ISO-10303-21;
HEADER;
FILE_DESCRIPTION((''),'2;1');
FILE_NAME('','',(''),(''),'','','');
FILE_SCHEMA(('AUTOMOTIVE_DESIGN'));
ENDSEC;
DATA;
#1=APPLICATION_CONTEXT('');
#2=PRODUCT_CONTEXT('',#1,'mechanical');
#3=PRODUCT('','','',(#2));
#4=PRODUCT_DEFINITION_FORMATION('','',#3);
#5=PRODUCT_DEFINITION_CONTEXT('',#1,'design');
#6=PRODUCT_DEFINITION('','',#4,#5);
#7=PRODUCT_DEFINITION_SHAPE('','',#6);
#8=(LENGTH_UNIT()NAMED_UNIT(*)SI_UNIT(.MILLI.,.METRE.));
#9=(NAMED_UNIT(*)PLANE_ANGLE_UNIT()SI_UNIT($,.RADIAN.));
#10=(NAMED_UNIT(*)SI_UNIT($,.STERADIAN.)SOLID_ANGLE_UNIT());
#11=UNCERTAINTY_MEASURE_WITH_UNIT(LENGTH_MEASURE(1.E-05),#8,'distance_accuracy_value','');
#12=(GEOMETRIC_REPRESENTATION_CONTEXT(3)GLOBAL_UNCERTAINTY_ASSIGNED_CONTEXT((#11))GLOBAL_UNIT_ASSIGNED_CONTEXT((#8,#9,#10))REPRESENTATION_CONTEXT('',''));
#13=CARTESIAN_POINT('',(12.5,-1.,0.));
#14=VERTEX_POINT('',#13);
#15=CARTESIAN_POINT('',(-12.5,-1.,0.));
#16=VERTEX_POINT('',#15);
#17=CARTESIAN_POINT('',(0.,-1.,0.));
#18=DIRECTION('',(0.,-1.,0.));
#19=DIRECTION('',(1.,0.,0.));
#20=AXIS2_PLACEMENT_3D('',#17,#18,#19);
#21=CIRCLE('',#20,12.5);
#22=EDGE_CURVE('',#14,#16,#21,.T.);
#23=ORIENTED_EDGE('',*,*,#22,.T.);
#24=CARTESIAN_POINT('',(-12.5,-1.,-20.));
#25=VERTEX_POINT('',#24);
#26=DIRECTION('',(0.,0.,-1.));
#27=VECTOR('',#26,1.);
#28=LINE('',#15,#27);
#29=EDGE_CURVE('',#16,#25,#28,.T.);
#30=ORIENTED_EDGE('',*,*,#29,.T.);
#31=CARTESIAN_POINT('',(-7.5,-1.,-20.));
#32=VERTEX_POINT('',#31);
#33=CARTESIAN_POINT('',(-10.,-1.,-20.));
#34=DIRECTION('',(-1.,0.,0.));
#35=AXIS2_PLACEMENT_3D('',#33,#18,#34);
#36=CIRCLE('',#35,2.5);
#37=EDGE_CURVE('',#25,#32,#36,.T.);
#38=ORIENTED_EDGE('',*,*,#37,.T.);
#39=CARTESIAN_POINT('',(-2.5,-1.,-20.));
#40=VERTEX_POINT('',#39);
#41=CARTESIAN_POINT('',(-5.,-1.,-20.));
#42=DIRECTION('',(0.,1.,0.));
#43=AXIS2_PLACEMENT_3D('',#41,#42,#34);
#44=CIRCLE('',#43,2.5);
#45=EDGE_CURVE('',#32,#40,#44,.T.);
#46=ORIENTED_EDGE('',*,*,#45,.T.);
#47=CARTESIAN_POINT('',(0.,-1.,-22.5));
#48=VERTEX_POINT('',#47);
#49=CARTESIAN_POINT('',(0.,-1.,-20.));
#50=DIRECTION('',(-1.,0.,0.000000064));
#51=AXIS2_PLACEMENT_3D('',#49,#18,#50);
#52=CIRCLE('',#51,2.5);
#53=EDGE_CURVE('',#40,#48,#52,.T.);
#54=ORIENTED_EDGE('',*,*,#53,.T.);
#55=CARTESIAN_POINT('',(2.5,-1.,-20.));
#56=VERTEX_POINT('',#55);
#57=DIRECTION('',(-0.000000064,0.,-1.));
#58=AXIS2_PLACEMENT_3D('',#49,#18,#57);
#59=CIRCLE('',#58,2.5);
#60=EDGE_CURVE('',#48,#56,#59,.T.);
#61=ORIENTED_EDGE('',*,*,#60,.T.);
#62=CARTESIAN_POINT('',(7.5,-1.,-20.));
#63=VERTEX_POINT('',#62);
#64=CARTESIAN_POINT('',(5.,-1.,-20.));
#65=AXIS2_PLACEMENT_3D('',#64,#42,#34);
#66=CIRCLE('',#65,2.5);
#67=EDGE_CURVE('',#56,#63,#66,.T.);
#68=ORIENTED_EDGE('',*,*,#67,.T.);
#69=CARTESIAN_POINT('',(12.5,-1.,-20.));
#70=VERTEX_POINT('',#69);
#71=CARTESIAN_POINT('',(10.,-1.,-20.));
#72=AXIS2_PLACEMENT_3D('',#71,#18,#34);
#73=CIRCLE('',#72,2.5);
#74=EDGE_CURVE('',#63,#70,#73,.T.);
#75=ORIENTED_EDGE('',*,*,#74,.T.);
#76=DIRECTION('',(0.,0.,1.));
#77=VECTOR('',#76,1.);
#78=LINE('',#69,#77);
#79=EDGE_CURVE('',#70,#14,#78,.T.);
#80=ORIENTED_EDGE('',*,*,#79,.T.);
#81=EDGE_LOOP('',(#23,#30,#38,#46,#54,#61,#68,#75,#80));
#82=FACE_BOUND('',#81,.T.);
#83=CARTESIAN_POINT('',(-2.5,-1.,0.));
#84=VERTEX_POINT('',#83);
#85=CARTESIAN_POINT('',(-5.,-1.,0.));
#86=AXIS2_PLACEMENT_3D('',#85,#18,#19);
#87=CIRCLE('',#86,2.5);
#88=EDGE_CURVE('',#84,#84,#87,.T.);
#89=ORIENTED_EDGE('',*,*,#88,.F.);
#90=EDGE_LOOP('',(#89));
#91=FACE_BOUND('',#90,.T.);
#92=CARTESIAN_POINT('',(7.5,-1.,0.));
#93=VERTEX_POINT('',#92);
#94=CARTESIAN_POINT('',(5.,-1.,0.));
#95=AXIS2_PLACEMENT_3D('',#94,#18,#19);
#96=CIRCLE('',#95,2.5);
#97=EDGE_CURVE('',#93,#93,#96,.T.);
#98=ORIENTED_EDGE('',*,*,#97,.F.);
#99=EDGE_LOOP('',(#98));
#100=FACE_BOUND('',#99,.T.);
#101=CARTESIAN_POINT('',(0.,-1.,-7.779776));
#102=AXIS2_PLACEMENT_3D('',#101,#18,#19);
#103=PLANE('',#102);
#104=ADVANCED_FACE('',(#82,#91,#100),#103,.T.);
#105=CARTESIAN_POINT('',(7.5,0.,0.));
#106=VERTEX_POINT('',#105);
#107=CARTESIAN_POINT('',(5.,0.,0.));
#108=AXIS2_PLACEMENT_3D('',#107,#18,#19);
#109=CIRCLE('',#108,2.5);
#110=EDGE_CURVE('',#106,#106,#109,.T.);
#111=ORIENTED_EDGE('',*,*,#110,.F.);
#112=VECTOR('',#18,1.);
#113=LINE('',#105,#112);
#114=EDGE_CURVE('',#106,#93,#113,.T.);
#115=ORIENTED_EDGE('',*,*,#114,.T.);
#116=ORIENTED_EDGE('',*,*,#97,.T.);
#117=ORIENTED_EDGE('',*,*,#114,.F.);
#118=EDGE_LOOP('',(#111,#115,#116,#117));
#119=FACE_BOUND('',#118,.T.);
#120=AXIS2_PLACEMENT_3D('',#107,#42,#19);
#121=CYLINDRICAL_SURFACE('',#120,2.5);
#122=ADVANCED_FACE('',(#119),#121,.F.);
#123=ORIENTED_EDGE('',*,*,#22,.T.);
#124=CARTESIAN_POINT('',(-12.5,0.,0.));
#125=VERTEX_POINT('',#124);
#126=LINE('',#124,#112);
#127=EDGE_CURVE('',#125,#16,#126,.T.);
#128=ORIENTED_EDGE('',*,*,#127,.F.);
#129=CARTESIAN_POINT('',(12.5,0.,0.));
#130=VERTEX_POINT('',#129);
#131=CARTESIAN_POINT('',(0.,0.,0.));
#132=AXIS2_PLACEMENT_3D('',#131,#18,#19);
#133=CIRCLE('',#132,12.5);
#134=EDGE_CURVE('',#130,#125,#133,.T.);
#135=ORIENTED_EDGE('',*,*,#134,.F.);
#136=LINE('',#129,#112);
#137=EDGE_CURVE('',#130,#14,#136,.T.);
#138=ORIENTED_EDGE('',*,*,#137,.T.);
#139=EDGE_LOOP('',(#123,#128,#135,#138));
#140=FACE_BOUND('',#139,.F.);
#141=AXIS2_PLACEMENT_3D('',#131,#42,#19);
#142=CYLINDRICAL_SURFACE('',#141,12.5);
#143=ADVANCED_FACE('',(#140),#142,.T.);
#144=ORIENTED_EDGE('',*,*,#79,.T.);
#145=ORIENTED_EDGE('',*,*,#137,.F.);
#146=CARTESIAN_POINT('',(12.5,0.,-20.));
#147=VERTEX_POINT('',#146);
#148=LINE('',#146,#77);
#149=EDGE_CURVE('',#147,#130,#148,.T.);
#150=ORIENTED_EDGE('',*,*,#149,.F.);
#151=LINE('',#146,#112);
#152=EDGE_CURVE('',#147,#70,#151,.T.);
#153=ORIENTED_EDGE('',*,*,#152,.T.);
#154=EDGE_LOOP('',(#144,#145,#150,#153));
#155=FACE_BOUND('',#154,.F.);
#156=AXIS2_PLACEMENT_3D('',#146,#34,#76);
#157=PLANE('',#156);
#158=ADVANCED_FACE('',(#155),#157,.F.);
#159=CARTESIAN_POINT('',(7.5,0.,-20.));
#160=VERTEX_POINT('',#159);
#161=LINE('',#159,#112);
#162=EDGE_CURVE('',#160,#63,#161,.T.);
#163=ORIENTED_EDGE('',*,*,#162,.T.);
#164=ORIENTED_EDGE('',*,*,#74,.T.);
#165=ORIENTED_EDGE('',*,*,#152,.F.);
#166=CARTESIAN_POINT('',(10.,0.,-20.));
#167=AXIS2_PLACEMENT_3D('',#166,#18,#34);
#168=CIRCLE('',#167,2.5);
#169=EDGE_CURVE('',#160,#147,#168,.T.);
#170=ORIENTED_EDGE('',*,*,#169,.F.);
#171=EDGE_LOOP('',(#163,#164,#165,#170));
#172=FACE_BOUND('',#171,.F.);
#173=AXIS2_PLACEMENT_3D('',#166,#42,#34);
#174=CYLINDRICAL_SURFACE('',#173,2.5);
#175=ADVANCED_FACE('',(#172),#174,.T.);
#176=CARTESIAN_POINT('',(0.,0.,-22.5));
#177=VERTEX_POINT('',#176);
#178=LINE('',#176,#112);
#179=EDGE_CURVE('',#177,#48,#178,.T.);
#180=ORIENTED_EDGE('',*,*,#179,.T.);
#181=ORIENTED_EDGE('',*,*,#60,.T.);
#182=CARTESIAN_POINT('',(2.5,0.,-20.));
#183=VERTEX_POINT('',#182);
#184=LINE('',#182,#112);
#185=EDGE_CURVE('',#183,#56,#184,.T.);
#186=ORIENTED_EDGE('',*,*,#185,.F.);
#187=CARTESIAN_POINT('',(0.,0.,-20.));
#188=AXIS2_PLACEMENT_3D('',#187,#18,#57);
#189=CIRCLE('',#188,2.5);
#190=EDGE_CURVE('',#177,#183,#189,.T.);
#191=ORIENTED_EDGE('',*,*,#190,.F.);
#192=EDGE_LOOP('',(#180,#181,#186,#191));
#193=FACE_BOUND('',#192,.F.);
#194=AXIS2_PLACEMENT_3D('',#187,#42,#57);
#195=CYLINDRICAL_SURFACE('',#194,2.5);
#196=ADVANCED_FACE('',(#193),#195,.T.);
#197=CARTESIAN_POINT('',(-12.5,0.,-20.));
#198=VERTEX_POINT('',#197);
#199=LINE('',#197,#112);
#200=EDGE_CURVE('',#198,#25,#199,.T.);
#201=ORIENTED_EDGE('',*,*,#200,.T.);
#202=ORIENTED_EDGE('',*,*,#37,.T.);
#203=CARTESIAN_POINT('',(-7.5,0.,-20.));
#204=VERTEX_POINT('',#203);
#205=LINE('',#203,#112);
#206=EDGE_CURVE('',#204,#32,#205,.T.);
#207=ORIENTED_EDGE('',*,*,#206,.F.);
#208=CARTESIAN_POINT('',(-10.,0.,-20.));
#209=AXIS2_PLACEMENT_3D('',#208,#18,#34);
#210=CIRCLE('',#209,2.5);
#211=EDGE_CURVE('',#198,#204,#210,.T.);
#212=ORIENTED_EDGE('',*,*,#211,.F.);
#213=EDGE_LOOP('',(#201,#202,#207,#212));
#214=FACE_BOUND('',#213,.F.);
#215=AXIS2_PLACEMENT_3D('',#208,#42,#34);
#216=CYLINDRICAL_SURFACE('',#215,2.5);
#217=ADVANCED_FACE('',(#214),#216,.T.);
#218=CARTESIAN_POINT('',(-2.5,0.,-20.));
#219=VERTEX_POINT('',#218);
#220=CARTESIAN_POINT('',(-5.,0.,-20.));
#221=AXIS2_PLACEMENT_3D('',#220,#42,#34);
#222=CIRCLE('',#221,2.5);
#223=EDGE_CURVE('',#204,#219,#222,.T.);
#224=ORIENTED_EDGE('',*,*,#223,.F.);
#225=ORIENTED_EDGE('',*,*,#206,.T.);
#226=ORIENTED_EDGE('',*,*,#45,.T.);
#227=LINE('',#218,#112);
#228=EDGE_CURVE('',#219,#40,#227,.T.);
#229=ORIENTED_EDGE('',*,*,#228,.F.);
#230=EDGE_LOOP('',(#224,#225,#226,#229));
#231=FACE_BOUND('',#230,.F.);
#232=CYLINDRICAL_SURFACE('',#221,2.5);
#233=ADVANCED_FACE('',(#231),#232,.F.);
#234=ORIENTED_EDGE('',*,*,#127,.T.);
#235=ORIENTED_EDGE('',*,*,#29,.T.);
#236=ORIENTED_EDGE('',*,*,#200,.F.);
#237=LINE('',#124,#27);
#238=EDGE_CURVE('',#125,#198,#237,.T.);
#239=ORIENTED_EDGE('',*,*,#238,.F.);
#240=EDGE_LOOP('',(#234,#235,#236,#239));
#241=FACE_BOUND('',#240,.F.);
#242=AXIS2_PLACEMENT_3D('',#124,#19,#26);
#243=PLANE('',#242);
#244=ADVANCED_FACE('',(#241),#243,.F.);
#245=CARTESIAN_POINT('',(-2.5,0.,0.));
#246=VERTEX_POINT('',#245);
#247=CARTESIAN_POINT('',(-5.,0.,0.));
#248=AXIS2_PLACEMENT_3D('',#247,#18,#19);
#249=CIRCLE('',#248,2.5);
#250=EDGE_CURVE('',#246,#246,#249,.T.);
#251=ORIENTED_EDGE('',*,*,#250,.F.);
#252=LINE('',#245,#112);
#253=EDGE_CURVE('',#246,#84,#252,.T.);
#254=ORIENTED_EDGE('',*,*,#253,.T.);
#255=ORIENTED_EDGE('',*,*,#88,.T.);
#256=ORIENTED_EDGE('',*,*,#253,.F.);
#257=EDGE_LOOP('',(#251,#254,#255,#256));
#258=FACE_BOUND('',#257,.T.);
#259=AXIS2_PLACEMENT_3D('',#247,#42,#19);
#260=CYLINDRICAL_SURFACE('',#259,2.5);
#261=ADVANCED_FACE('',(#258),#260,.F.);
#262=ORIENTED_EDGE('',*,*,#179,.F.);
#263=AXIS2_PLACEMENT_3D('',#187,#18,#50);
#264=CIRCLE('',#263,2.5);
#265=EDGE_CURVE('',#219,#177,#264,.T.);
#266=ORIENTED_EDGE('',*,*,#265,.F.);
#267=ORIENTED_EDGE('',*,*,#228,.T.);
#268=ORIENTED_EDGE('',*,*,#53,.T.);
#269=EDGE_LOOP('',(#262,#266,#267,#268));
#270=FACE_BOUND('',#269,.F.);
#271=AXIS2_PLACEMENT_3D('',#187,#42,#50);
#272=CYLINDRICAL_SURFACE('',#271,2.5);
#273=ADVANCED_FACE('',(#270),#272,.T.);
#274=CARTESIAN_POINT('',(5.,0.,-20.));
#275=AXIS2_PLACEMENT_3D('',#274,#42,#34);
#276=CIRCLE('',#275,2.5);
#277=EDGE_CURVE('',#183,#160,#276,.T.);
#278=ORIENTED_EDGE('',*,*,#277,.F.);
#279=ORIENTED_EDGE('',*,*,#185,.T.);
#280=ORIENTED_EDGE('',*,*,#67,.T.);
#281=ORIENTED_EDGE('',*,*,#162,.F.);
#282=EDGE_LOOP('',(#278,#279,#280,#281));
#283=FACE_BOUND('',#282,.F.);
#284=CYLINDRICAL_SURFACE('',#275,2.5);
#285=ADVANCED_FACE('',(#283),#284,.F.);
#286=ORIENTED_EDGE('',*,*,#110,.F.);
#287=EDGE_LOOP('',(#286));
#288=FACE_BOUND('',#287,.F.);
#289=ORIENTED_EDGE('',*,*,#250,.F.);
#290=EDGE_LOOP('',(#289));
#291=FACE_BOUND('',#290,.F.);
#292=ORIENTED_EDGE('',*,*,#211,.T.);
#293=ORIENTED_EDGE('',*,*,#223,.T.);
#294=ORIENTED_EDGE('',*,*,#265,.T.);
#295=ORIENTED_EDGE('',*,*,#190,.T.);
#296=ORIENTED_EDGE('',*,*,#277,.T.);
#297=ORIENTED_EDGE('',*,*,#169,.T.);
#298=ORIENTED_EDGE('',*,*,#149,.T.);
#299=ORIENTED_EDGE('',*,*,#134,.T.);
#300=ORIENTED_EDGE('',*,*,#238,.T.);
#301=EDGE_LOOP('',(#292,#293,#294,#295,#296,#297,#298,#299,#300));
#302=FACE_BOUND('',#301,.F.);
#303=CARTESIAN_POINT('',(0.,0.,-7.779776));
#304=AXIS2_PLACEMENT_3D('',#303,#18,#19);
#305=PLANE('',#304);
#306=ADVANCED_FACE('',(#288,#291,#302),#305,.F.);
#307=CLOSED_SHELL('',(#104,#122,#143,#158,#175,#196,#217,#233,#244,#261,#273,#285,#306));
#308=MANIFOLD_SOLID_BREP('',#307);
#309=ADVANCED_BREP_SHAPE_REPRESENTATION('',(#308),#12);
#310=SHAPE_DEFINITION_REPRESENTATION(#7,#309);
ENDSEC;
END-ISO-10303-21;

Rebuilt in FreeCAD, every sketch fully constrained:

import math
import FreeCAD as App
import Part
import Sketcher

V = App.Vector
Q = App.Units.Quantity

doc = App.newDocument("Part")
body = doc.addObject("PartDesign::Body", "Body")

# Sketch on XZ plane
sketch1 = body.newObject("Sketcher::SketchObject", "Sketch")
sketch1.AttachmentSupport = (doc.getObject("XZ_Plane"), [""])
sketch1.MapMode = "FlatFace"
sketch1.addGeometry([
    Part.ArcOfCircle(Part.Circle(V(0, 0, 0), V(0, 0, 1), 12.5), math.radians(0), math.radians(180)),  # 0
    Part.LineSegment(V(-12.5, 0, 0), V(-12.5, -20, 0)),  # 1
    Part.ArcOfCircle(Part.Circle(V(-10, -20, 0), V(0, 0, 1), 2.5), math.radians(180), math.radians(360)),  # 2
    Part.ArcOfCircle(Part.Circle(V(-5, -20, 0), V(0, 0, 1), 2.5), math.radians(0), math.radians(180)),  # 3
    Part.ArcOfCircle(Part.Circle(V(0, -20, 0), V(0, 0, 1), 2.5), math.radians(180), math.radians(270)),  # 4
    Part.ArcOfCircle(Part.Circle(V(0, -20, 0), V(0, 0, 1), 2.5), math.radians(-90), math.radians(0)),  # 5
    Part.ArcOfCircle(Part.Circle(V(5, -20, 0), V(0, 0, 1), 2.5), math.radians(0), math.radians(180)),  # 6
    Part.ArcOfCircle(Part.Circle(V(10, -20, 0), V(0, 0, 1), 2.5), math.radians(180), math.radians(360)),  # 7
    Part.LineSegment(V(12.5, -20, 0), V(12.5, 0, 0)),  # 8
    Part.Circle(V(-5, 0, 0), V(0, 0, 1), 2.5),  # 9
    Part.Circle(V(5, 0, 0), V(0, 0, 1), 2.5),  # 10
], False)
sketch1.addConstraint([
    Sketcher.Constraint("Tangent", 0, 2, 1, 1),
    Sketcher.Constraint("Tangent", 1, 2, 2, 1),
    Sketcher.Constraint("Tangent", 2, 2, 3, 2),
    Sketcher.Constraint("Tangent", 3, 1, 4, 1),
    Sketcher.Constraint("Tangent", 4, 2, 5, 1),
    Sketcher.Constraint("Tangent", 5, 2, 6, 2),
    Sketcher.Constraint("Tangent", 6, 1, 7, 1),
    Sketcher.Constraint("Tangent", 7, 2, 8, 1),
    Sketcher.Constraint("Tangent", 8, 2, 0, 1),
    Sketcher.Constraint("Vertical", 1),
    Sketcher.Constraint("Vertical", 8),
    Sketcher.Constraint("Coincident", 0, 3, -1, 1),
    Sketcher.Constraint("Equal", 2, 3),
    Sketcher.Constraint("Equal", 3, 4),
    Sketcher.Constraint("Equal", 4, 5),
    Sketcher.Constraint("Equal", 5, 6),
    Sketcher.Constraint("Equal", 6, 7),
    Sketcher.Constraint("Equal", 7, 9),
    Sketcher.Constraint("Equal", 9, 10),
    Sketcher.Constraint("Symmetric", 9, 3, 10, 3, -1, 1),
    Sketcher.Constraint("PointOnObject", 9, 3, -1),
    Sketcher.Constraint("PointOnObject", 4, 2, -2),
    Sketcher.Constraint("Horizontal", 2, 3, 3, 3),
    Sketcher.Constraint("Horizontal", 3, 3, 4, 3),
    Sketcher.Constraint("Horizontal", 5, 3, 6, 3),
    Sketcher.Constraint("Horizontal", 6, 3, 7, 3),
    Sketcher.Constraint("Vertical", 3, 3, 9, 3),
    Sketcher.Constraint("Diameter", 9, Q("5 mm")),
    Sketcher.Constraint("DistanceY", 1, 2, 1, 1, Q("20 mm")),
])
pad1 = body.newObject("PartDesign::Pad", "Pad")
pad1.Profile = sketch1
pad1.Length = 1

doc.recompute()
